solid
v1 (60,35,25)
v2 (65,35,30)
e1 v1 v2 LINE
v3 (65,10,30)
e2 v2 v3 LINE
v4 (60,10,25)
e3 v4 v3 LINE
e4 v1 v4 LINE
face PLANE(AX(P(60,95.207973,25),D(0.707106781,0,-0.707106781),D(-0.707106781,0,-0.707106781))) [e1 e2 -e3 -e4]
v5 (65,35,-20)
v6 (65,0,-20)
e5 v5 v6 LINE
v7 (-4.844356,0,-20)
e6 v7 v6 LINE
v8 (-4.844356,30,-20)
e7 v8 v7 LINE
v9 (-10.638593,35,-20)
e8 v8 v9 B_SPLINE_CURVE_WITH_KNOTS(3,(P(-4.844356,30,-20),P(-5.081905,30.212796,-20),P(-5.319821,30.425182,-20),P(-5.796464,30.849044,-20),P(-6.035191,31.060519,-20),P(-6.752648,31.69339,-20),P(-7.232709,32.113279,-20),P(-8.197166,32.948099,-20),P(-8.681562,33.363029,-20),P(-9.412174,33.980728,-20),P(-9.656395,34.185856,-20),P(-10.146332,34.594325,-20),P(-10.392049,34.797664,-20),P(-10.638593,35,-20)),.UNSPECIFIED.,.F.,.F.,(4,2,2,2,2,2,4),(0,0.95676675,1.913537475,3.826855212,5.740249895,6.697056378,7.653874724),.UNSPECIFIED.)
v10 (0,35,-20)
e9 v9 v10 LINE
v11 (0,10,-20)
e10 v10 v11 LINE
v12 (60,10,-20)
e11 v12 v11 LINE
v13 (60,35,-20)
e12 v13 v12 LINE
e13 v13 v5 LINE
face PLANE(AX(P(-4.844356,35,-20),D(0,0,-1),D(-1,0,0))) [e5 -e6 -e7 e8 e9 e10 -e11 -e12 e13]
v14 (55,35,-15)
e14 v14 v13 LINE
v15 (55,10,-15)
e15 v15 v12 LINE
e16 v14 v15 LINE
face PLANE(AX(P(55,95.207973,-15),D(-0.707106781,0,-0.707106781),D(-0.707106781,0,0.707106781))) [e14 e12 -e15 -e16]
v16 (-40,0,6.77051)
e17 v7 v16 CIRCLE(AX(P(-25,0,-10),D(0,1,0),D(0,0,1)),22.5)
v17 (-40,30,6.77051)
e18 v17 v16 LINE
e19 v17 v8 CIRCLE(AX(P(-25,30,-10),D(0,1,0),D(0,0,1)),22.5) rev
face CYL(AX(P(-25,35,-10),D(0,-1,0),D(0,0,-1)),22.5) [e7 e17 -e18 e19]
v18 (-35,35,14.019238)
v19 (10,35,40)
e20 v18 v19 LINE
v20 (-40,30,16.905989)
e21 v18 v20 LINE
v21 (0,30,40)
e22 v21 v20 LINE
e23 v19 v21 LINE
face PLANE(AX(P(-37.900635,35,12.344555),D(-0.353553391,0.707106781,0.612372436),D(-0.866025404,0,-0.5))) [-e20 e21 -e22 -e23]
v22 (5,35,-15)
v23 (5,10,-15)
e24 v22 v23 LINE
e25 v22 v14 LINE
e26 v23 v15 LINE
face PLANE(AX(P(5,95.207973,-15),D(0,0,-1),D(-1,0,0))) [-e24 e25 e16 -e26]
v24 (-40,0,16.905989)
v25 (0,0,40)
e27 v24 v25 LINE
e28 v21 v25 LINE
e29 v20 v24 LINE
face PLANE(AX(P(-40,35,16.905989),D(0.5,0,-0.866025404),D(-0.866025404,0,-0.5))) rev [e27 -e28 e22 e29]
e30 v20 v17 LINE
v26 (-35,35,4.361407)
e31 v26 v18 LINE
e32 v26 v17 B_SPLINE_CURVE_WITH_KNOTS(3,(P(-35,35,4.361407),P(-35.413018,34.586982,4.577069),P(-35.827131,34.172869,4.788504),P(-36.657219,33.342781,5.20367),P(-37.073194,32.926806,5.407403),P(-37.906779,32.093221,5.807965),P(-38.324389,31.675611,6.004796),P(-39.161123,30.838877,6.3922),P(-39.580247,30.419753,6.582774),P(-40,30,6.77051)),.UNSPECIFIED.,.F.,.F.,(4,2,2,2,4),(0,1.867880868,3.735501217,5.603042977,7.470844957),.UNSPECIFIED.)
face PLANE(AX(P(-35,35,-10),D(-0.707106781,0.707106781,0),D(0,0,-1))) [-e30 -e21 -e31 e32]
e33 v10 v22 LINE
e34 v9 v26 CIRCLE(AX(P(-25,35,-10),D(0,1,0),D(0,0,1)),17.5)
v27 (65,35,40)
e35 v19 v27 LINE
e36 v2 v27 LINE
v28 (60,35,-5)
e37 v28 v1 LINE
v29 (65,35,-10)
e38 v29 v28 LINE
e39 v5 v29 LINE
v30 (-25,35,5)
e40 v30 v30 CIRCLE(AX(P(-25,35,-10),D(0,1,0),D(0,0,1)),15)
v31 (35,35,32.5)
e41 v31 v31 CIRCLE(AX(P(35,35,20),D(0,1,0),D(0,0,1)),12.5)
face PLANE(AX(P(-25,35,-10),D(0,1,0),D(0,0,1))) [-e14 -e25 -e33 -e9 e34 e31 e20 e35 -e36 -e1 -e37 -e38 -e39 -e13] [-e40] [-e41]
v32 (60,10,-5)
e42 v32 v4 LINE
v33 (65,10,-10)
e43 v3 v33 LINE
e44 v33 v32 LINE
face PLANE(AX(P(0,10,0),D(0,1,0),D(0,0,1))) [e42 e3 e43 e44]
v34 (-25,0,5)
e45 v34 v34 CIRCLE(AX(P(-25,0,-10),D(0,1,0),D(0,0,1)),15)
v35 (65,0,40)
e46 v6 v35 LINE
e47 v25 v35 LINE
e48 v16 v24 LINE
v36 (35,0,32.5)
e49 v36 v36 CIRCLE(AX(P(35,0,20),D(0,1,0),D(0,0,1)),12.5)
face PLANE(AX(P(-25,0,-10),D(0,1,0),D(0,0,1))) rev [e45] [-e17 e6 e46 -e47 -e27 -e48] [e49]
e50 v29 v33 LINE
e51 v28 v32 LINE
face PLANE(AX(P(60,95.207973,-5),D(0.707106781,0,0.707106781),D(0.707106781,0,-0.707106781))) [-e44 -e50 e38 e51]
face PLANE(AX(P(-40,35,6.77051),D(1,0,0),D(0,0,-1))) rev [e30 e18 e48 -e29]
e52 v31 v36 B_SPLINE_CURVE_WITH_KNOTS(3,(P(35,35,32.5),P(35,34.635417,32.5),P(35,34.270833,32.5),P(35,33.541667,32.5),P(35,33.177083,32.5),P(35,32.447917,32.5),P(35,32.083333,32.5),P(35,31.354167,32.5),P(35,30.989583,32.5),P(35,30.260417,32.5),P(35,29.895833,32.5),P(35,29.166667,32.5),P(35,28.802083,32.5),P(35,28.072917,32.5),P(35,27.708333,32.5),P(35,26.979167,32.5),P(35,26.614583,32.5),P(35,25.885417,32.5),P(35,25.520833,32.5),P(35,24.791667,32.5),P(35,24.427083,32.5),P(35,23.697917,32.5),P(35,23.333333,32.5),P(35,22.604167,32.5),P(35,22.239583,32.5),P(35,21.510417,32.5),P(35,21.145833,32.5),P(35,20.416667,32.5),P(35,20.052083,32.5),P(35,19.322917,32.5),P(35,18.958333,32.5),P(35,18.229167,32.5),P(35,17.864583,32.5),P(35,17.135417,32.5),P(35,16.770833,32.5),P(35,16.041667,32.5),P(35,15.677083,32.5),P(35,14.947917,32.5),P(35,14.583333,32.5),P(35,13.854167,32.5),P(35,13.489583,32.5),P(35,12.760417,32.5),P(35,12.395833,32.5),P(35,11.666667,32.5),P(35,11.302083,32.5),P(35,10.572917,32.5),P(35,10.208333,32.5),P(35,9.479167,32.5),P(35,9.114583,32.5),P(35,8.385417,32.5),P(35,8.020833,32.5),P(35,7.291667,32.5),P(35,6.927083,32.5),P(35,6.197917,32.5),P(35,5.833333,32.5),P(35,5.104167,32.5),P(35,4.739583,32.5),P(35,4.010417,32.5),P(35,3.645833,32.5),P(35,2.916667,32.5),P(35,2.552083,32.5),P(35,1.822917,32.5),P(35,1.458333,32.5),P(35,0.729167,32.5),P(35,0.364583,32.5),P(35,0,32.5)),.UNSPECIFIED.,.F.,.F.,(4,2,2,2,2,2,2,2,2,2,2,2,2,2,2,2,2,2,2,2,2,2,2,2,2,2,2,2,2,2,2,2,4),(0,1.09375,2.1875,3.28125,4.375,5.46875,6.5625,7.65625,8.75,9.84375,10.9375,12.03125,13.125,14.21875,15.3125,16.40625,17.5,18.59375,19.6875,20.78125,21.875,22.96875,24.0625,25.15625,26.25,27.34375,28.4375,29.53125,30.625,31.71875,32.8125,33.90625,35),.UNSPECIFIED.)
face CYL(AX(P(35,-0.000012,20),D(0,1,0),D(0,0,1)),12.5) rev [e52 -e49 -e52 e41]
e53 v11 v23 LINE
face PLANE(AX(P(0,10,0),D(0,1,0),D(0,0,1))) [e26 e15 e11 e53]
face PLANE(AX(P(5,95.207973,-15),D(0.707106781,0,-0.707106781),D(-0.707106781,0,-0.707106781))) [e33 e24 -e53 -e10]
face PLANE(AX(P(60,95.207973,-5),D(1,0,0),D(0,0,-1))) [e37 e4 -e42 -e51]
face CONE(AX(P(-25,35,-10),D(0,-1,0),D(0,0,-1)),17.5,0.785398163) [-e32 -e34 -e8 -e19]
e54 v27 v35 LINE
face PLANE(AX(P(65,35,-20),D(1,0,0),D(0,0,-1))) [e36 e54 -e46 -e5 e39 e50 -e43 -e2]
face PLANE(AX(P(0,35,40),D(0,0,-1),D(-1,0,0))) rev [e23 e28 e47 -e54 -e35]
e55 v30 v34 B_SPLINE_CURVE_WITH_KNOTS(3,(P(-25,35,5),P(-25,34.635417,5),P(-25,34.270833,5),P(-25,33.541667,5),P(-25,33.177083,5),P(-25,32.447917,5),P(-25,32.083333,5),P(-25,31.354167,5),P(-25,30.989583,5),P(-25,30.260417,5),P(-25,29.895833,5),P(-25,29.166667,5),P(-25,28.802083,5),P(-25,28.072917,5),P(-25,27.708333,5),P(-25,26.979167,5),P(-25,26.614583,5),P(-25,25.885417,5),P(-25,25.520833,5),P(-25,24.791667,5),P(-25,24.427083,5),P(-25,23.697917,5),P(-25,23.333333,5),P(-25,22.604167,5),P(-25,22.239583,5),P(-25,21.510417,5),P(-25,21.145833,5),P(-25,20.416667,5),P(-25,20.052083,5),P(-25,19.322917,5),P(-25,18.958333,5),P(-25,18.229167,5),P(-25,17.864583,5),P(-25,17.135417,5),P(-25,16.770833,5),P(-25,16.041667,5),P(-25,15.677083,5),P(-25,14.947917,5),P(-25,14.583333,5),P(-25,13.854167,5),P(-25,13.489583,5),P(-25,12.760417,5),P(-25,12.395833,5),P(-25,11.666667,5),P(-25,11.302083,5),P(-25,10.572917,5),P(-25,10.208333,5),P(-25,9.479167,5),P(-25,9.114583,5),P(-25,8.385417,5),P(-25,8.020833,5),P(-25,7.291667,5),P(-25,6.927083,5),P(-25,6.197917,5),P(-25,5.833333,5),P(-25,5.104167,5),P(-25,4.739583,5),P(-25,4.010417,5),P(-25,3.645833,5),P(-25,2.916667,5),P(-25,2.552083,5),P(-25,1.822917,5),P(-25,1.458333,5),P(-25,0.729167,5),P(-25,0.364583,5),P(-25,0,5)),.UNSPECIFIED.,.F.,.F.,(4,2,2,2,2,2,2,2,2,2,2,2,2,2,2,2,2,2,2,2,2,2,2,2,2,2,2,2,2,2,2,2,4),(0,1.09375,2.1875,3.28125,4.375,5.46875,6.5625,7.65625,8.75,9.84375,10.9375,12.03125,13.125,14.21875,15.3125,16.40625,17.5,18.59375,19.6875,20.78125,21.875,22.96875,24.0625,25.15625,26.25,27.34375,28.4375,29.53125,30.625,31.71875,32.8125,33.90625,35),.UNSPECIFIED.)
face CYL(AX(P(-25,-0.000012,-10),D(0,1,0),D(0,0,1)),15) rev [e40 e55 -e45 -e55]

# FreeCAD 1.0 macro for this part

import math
import FreeCAD as App
import Part
import Sketcher
from FreeCAD import Vector
Q = App.Units.Quantity


def edges_at(feature, points):
    """Names of the edges that pass closest to the given points."""
    edges = feature.Shape.Edges
    near = lambda p: min(range(len(edges)), key=lambda i: edges[i].distToShape(Part.Vertex(*p))[0])
    return sorted({f"Edge{near(p) + 1}" for p in points})

doc = App.newDocument("Part")
body = doc.addObject("PartDesign::Body", "Body")

# Sketch on XZ plane
sketch1 = doc.addObject("Sketcher::SketchObject", "Sketch")
body.addObject(sketch1)
sketch1.AttachmentSupport = (doc.XZ_Plane, [""])
sketch1.MapMode = "FlatFace"
sketch1.addGeometry(Part.LineSegment(Vector(-40, 16.905989, 0), Vector(0, 40, 0)), False)
sketch1.addGeometry(Part.LineSegment(Vector(0, 40, 0), Vector(65, 40, 0)), False)
sketch1.addGeometry(Part.LineSegment(Vector(65, 40, 0), Vector(65, -20, 0)), False)
sketch1.addGeometry(Part.LineSegment(Vector(65, -20, 0), Vector(-4.844356, -20, 0)), False)
sketch1.addGeometry(Part.ArcOfCircle(Part.Circle(Vector(-25, -10, 0), Vector(0, 0, 1), 22.5), math.radians(131.810315), math.radians(333.6122)), False)
sketch1.addGeometry(Part.LineSegment(Vector(-40, 6.77051, 0), Vector(-40, 16.905989, 0)), False)
sketch1.addConstraint(Sketcher.Constraint("Coincident", 0, 2, 1, 1))
sketch1.addConstraint(Sketcher.Constraint("Coincident", 1, 2, 2, 1))
sketch1.addConstraint(Sketcher.Constraint("Coincident", 2, 2, 3, 1))
sketch1.addConstraint(Sketcher.Constraint("Coincident", 3, 2, 4, 2))
sketch1.addConstraint(Sketcher.Constraint("Coincident", 4, 1, 5, 1))
sketch1.addConstraint(Sketcher.Constraint("Coincident", 5, 2, 0, 1))
sketch1.addConstraint(Sketcher.Constraint("Horizontal", 1))
sketch1.addConstraint(Sketcher.Constraint("Vertical", 2))
sketch1.addConstraint(Sketcher.Constraint("Horizontal", 3))
sketch1.addConstraint(Sketcher.Constraint("Vertical", 5))
sketch1.addConstraint(Sketcher.Constraint("PointOnObject", 0, 2, -2))
sketch1.addConstraint(Sketcher.Constraint("Radius", 4, 22.5))
sketch1.addConstraint(Sketcher.Constraint("DistanceX", 1, 1, 1, 2, 65.0))
sketch1.addConstraint(Sketcher.Constraint("DistanceY", 2, 2, 2, 1, 60.0))
sketch1.addConstraint(Sketcher.Constraint("Angle", 0, Q("30 deg")))
sketch1.addConstraint(Sketcher.Constraint("DistanceX", 4, 3, -1, 1, 25.0))
sketch1.addConstraint(Sketcher.Constraint("DistanceY", 4, 3, -1, 1, 10.0))
sketch1.addConstraint(Sketcher.Constraint("DistanceY", -1, 1, 0, 2, 40.0))
sketch1.addConstraint(Sketcher.Constraint("DistanceX", 4, 1, -1, 1, 40.0))
pad1 = doc.addObject("PartDesign::Pad", "Pad")
body.addObject(pad1)
pad1.Profile = sketch1
pad1.Length = 35
pad1.Reversed = True

# Sketch on XZ plane
sketch2 = doc.addObject("Sketcher::SketchObject", "Sketch001")
body.addObject(sketch2)
sketch2.AttachmentSupport = (doc.XZ_Plane, [""])
sketch2.MapMode = "FlatFace"
sketch2.addGeometry(Part.Circle(Vector(35, 20, 0), Vector(0, 0, 1), 12.5), False)
sketch2.addGeometry(Part.Circle(Vector(-25, -10, 0), Vector(0, 0, 1), 15), False)
sketch2.addConstraint(Sketcher.Constraint("Diameter", 0, 25.0))
sketch2.addConstraint(Sketcher.Constraint("Diameter", 1, 30.0))
sketch2.addConstraint(Sketcher.Constraint("DistanceX", -1, 1, 0, 3, 35.0))
sketch2.addConstraint(Sketcher.Constraint("DistanceY", -1, 1, 0, 3, 20.0))
sketch2.addConstraint(Sketcher.Constraint("DistanceX", 1, 3, -1, 1, 25.0))
sketch2.addConstraint(Sketcher.Constraint("DistanceY", 1, 3, -1, 1, 10.0))
pocket1 = doc.addObject("PartDesign::Pocket", "Pocket")
body.addObject(pocket1)
pocket1.Profile = sketch2
pocket1.Type = "ThroughAll"
pocket1.Midplane = True

# Sketch on XZ plane
sketch3 = doc.addObject("Sketcher::SketchObject", "Sketch002")
body.addObject(sketch3)
sketch3.AttachmentSupport = (doc.XZ_Plane, [""])
sketch3.MapMode = "FlatFace"
sketch3.AttachmentOffset = App.Placement(Vector(0, 0, -10), App.Rotation())
sketch3.addGeometry(Part.LineSegment(Vector(60, -20, 0), Vector(0, -20, 0)), False)
sketch3.addGeometry(Part.LineSegment(Vector(0, -20, 0), Vector(5, -15, 0)), False)
sketch3.addGeometry(Part.LineSegment(Vector(5, -15, 0), Vector(55, -15, 0)), False)
sketch3.addGeometry(Part.LineSegment(Vector(55, -15, 0), Vector(60, -20, 0)), False)
sketch3.addGeometry(Part.LineSegment(Vector(65, 30, 0), Vector(65, -10, 0)), False)
sketch3.addGeometry(Part.LineSegment(Vector(65, -10, 0), Vector(60, -5, 0)), False)
sketch3.addGeometry(Part.LineSegment(Vector(60, -5, 0), Vector(60, 25, 0)), False)
sketch3.addGeometry(Part.LineSegment(Vector(60, 25, 0), Vector(65, 30, 0)), False)
sketch3.addConstraint(Sketcher.Constraint("Coincident", 0, 2, 1, 1))
sketch3.addConstraint(Sketcher.Constraint("Coincident", 1, 2, 2, 1))
sketch3.addConstraint(Sketcher.Constraint("Coincident", 2, 2, 3, 1))
sketch3.addConstraint(Sketcher.Constraint("Coincident", 3, 2, 0, 1))
sketch3.addConstraint(Sketcher.Constraint("Coincident", 4, 2, 5, 1))
sketch3.addConstraint(Sketcher.Constraint("Coincident", 5, 2, 6, 1))
sketch3.addConstraint(Sketcher.Constraint("Coincident", 6, 2, 7, 1))
sketch3.addConstraint(Sketcher.Constraint("Coincident", 7, 2, 4, 1))
sketch3.addConstraint(Sketcher.Constraint("Horizontal", 0))
sketch3.addConstraint(Sketcher.Constraint("Horizontal", 2))
sketch3.addConstraint(Sketcher.Constraint("Vertical", 4))
sketch3.addConstraint(Sketcher.Constraint("Vertical", 6))
sketch3.addConstraint(Sketcher.Constraint("PointOnObject", 0, 2, -2))
sketch3.addConstraint(Sketcher.Constraint("Perpendicular", 1, 3))
sketch3.addConstraint(Sketcher.Constraint("Parallel", 3, 5))
sketch3.addConstraint(Sketcher.Constraint("Perpendicular", 5, 7))
sketch3.addConstraint(Sketcher.Constraint("Vertical", 3, 2, 5, 2))
sketch3.addConstraint(Sketcher.Constraint("Equal", 1, 3))
sketch3.addConstraint(Sketcher.Constraint("Equal", 3, 5))
sketch3.addConstraint(Sketcher.Constraint("DistanceX", 0, 2, 0, 1, 60.0))
sketch3.addConstraint(Sketcher.Constraint("DistanceX", 2, 1, 2, 2, 50.0))
sketch3.addConstraint(Sketcher.Constraint("DistanceY", 4, 2, 4, 1, 40.0))
sketch3.addConstraint(Sketcher.Constraint("DistanceY", 0, 2, -1, 1, 20.0))
sketch3.addConstraint(Sketcher.Constraint("DistanceY", 4, 2, -1, 1, 10.0))
pocket2 = doc.addObject("PartDesign::Pocket", "Pocket001")
body.addObject(pocket2)
pocket2.Profile = sketch3
pocket2.Length = 25
doc.recompute()

chamfer = doc.addObject("PartDesign::Chamfer", "Chamfer")
body.addObject(chamfer)
chamfer.Base = (pocket2, edges_at(pocket2, [(-20, 35, 28.453), (-40, 35, 11.838), (-38.631, 35, -27.901)]))
chamfer.Size = 5

doc.recompute()
